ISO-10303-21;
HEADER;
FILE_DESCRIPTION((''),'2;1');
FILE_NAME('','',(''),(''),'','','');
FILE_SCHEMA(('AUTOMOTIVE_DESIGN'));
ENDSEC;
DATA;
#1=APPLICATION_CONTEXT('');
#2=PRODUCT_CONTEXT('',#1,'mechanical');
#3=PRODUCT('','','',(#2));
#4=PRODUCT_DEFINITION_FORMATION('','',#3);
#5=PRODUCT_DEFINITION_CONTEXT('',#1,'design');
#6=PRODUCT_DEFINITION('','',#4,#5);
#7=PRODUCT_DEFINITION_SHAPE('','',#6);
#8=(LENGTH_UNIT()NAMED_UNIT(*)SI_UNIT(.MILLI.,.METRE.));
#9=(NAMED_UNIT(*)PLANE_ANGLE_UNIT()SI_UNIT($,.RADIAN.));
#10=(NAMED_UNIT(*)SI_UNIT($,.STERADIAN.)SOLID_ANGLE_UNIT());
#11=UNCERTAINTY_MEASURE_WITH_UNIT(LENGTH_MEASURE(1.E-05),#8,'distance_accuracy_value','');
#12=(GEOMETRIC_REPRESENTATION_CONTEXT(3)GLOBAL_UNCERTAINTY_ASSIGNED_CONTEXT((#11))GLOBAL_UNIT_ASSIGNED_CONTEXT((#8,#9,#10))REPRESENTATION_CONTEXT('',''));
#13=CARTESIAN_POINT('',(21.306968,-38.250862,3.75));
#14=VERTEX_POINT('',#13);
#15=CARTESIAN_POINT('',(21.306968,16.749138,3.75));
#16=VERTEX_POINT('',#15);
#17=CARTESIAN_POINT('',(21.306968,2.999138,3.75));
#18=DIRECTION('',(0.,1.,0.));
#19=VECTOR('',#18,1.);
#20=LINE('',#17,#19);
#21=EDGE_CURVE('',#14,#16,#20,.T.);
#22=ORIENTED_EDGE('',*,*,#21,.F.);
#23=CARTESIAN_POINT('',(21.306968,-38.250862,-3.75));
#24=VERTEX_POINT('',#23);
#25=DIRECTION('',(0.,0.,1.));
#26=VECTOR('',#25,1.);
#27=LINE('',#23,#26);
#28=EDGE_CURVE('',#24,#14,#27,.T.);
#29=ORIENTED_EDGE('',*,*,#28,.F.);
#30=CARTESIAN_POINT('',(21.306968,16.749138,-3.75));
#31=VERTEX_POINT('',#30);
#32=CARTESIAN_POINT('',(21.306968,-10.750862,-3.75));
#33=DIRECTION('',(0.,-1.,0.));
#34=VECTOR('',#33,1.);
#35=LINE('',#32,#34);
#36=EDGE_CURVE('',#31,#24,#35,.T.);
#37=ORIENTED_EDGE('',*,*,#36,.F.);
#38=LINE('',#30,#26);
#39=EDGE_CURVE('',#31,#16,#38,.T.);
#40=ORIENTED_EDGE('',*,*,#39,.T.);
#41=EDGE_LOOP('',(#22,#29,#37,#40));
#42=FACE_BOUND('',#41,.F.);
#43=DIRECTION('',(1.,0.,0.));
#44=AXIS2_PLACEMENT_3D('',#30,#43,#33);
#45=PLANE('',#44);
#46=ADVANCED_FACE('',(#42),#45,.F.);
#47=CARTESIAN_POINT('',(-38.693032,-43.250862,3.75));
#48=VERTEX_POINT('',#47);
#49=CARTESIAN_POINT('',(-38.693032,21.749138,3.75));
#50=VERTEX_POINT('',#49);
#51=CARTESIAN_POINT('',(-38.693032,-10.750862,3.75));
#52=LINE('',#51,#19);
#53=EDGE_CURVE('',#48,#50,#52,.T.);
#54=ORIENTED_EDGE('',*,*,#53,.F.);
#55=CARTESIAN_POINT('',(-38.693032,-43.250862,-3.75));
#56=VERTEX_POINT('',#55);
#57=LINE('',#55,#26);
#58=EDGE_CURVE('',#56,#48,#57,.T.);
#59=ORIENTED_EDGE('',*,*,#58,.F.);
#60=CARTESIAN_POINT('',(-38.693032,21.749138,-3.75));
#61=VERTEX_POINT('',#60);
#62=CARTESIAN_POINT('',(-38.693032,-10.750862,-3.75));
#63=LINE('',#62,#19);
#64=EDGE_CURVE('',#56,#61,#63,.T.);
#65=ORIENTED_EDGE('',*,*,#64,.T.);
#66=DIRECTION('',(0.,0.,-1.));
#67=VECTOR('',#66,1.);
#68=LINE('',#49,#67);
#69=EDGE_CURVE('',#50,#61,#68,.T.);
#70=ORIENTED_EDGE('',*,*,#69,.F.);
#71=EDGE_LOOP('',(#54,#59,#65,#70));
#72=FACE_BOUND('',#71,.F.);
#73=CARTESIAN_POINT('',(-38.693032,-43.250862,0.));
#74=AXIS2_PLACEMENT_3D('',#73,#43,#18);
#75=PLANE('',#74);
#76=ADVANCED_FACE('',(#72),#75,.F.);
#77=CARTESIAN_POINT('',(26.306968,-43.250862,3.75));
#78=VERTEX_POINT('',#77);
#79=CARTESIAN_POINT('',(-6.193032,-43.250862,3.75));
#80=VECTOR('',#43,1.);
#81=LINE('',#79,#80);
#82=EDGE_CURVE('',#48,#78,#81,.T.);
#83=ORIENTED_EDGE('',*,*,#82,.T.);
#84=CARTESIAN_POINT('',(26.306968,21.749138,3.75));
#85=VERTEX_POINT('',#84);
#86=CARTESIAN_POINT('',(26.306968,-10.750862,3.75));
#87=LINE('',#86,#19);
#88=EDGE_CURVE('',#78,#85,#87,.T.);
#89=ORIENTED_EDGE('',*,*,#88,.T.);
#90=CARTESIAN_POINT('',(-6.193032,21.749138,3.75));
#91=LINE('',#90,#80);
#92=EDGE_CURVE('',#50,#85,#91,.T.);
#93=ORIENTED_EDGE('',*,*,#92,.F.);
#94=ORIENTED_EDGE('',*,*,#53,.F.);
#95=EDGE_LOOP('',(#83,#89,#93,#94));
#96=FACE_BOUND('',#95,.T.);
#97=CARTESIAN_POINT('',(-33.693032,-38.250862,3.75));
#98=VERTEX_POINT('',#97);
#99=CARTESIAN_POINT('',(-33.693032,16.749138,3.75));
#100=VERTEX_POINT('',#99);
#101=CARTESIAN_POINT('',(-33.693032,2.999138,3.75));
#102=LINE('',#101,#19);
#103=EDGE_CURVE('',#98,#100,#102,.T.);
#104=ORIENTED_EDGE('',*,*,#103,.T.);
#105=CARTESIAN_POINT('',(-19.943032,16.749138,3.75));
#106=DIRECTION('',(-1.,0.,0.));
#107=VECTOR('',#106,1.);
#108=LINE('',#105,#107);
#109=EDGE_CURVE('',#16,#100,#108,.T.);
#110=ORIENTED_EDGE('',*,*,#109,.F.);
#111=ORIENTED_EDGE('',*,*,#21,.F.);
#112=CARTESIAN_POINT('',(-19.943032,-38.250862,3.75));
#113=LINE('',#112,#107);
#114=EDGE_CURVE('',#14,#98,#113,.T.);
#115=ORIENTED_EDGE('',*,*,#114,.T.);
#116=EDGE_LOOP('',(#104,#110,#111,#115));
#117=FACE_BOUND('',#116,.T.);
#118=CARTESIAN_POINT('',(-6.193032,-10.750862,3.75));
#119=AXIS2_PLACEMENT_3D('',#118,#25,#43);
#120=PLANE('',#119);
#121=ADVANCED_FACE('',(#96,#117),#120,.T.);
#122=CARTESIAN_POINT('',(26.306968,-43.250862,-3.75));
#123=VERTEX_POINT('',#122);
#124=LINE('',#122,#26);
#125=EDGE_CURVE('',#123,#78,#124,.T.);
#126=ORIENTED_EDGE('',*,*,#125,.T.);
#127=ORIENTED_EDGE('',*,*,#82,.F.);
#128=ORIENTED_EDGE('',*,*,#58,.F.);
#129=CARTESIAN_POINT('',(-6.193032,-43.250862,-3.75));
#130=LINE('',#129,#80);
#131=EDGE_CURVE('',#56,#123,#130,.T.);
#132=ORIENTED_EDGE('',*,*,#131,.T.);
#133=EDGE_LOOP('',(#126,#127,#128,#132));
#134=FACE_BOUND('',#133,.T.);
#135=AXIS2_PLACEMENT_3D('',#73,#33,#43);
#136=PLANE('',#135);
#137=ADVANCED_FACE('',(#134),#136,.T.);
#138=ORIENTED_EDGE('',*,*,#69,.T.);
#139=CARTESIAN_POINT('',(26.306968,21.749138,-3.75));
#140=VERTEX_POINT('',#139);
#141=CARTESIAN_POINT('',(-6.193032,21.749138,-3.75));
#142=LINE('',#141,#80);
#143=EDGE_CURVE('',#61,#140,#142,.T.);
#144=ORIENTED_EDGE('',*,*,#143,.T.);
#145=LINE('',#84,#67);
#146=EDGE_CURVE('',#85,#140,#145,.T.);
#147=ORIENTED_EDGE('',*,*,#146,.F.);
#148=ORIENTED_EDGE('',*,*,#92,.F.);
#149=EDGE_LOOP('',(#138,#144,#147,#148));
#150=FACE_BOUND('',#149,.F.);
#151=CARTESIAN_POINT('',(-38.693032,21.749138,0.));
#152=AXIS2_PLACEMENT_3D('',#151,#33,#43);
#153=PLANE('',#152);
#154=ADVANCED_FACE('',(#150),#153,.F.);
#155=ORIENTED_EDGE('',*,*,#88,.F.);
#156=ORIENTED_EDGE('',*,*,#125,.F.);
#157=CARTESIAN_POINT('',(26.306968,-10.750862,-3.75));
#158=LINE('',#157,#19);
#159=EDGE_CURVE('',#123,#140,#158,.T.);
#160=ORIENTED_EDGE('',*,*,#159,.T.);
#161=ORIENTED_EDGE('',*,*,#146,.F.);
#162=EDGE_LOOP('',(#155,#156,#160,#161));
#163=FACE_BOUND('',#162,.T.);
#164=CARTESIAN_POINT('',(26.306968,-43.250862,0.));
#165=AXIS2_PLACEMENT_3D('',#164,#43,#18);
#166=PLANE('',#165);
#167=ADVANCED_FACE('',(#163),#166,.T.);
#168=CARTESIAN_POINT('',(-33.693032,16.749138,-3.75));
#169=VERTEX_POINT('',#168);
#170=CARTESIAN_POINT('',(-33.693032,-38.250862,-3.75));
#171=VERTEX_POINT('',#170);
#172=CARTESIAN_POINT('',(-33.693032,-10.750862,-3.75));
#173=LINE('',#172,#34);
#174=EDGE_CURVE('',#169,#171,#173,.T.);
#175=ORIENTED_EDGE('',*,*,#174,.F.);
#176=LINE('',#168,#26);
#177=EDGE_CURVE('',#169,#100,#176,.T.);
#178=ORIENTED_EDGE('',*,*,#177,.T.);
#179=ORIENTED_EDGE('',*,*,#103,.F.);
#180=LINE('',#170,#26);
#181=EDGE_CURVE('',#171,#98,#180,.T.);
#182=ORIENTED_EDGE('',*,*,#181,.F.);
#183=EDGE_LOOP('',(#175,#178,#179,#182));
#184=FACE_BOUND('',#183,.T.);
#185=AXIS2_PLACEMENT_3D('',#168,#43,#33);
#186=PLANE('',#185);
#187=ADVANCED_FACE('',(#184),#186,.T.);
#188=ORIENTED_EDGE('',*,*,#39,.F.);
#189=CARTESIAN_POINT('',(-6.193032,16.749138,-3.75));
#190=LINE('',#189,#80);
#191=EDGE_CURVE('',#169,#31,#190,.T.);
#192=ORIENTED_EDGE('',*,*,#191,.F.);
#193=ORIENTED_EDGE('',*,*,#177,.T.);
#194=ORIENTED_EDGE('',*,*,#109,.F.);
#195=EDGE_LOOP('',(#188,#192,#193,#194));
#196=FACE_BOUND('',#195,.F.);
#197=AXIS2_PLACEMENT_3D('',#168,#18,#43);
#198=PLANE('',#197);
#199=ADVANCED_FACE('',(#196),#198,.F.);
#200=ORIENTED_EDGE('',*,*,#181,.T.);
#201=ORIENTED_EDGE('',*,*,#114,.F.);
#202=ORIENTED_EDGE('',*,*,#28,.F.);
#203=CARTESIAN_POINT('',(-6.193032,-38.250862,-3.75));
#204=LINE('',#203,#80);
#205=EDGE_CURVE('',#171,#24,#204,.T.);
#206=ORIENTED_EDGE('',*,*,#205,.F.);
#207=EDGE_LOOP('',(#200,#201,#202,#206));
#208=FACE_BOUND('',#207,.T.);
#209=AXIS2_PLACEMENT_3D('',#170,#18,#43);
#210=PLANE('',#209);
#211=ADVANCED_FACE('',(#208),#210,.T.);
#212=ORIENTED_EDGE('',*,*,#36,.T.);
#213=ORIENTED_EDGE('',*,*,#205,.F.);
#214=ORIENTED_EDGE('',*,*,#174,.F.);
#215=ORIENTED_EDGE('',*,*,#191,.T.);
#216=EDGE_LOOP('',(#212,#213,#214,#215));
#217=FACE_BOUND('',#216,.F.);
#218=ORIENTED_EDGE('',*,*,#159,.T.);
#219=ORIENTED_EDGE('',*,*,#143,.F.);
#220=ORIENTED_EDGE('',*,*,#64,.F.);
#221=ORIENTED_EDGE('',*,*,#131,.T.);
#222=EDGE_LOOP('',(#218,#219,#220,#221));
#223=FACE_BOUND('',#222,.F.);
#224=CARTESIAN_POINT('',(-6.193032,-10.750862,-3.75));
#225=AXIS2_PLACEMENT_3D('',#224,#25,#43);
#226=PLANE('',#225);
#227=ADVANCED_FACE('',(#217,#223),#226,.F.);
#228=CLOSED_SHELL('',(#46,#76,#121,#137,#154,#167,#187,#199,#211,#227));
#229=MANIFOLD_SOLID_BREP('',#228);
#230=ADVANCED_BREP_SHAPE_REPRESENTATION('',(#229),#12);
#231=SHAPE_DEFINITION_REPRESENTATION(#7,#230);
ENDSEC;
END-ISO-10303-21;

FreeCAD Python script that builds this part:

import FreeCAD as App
import Part
import Sketcher
from FreeCAD import Vector

doc = App.newDocument("Part")
body = doc.addObject("PartDesign::Body", "Body")

sketch1 = body.newObject("Sketcher::SketchObject", "Sketch")
sketch1.AttachmentSupport = (doc.getObject("XY_Plane"), [""])
sketch1.MapMode = "FlatFace"
sketch1.addGeometry([
    Part.LineSegment(Vector(-38.693032, 21.749138, 0), Vector(-38.693032, -43.250862, 0)),
    Part.LineSegment(Vector(-38.693032, -43.250862, 0), Vector(26.306968, -43.250862, 0)),
    Part.LineSegment(Vector(26.306968, -43.250862, 0), Vector(26.306968, 21.749138, 0)),
    Part.LineSegment(Vector(26.306968, 21.749138, 0), Vector(-38.693032, 21.749138, 0)),
], False)
sketch1.addConstraint([
    Sketcher.Constraint("Coincident", 0, 2, 1, 1),
    Sketcher.Constraint("Coincident", 1, 2, 2, 1),
    Sketcher.Constraint("Coincident", 2, 2, 3, 1),
    Sketcher.Constraint("Coincident", 3, 2, 0, 1),
    Sketcher.Constraint("Vertical", 0),
    Sketcher.Constraint("Horizontal", 1),
    Sketcher.Constraint("Vertical", 2),
    Sketcher.Constraint("Horizontal", 3),
    Sketcher.Constraint("Equal", 3, 0),
    Sketcher.Constraint("DistanceX", 1, 1, 1, 2, 65.0),
    Sketcher.Constraint("DistanceY", 0, 2, -1, 1, 43.250862),
    Sketcher.Constraint("DistanceX", -1, 1, 1, 2, 26.306968),
])
pad1 = body.newObject("PartDesign::Pad", "Pad")
pad1.Profile = sketch1
pad1.Length = 7.5
pad1.Midplane = True

sketch2 = body.newObject("Sketcher::SketchObject", "Sketch001")
sketch2.AttachmentSupport = (doc.getObject("XY_Plane"), [""])
sketch2.MapMode = "FlatFace"
sketch2.AttachmentOffset = App.Placement(Vector(0, 0, -3.75), App.Rotation())
sketch2.addGeometry([
    Part.LineSegment(Vector(-33.693032, -38.250862, 0), Vector(-33.693032, 16.749138, 0)),
    Part.LineSegment(Vector(-33.693032, 16.749138, 0), Vector(21.306968, 16.749138, 0)),
    Part.LineSegment(Vector(21.306968, 16.749138, 0), Vector(21.306968, -38.250862, 0)),
    Part.LineSegment(Vector(21.306968, -38.250862, 0), Vector(-33.693032, -38.250862, 0)),
], False)
sketch2.addConstraint([
    Sketcher.Constraint("Coincident", 0, 2, 1, 1),
    Sketcher.Constraint("Coincident", 1, 2, 2, 1),
    Sketcher.Constraint("Coincident", 2, 2, 3, 1),
    Sketcher.Constraint("Coincident", 3, 2, 0, 1),
    Sketcher.Constraint("Vertical", 0),
    Sketcher.Constraint("Horizontal", 1),
    Sketcher.Constraint("Vertical", 2),
    Sketcher.Constraint("Horizontal", 3),
    Sketcher.Constraint("Equal", 3, 0),
    Sketcher.Constraint("DistanceX", 1, 1, 1, 2, 55.0),
    Sketcher.Constraint("DistanceX", -1, 1, 1, 2, 21.306968),
    Sketcher.Constraint("DistanceY", 2, 2, -1, 1, 38.250862),
])
pocket1 = body.newObject("PartDesign::Pocket", "Pocket")
pocket1.Profile = sketch2
pocket1.Type = "ThroughAll"
pocket1.Reversed = True

doc.recompute()
